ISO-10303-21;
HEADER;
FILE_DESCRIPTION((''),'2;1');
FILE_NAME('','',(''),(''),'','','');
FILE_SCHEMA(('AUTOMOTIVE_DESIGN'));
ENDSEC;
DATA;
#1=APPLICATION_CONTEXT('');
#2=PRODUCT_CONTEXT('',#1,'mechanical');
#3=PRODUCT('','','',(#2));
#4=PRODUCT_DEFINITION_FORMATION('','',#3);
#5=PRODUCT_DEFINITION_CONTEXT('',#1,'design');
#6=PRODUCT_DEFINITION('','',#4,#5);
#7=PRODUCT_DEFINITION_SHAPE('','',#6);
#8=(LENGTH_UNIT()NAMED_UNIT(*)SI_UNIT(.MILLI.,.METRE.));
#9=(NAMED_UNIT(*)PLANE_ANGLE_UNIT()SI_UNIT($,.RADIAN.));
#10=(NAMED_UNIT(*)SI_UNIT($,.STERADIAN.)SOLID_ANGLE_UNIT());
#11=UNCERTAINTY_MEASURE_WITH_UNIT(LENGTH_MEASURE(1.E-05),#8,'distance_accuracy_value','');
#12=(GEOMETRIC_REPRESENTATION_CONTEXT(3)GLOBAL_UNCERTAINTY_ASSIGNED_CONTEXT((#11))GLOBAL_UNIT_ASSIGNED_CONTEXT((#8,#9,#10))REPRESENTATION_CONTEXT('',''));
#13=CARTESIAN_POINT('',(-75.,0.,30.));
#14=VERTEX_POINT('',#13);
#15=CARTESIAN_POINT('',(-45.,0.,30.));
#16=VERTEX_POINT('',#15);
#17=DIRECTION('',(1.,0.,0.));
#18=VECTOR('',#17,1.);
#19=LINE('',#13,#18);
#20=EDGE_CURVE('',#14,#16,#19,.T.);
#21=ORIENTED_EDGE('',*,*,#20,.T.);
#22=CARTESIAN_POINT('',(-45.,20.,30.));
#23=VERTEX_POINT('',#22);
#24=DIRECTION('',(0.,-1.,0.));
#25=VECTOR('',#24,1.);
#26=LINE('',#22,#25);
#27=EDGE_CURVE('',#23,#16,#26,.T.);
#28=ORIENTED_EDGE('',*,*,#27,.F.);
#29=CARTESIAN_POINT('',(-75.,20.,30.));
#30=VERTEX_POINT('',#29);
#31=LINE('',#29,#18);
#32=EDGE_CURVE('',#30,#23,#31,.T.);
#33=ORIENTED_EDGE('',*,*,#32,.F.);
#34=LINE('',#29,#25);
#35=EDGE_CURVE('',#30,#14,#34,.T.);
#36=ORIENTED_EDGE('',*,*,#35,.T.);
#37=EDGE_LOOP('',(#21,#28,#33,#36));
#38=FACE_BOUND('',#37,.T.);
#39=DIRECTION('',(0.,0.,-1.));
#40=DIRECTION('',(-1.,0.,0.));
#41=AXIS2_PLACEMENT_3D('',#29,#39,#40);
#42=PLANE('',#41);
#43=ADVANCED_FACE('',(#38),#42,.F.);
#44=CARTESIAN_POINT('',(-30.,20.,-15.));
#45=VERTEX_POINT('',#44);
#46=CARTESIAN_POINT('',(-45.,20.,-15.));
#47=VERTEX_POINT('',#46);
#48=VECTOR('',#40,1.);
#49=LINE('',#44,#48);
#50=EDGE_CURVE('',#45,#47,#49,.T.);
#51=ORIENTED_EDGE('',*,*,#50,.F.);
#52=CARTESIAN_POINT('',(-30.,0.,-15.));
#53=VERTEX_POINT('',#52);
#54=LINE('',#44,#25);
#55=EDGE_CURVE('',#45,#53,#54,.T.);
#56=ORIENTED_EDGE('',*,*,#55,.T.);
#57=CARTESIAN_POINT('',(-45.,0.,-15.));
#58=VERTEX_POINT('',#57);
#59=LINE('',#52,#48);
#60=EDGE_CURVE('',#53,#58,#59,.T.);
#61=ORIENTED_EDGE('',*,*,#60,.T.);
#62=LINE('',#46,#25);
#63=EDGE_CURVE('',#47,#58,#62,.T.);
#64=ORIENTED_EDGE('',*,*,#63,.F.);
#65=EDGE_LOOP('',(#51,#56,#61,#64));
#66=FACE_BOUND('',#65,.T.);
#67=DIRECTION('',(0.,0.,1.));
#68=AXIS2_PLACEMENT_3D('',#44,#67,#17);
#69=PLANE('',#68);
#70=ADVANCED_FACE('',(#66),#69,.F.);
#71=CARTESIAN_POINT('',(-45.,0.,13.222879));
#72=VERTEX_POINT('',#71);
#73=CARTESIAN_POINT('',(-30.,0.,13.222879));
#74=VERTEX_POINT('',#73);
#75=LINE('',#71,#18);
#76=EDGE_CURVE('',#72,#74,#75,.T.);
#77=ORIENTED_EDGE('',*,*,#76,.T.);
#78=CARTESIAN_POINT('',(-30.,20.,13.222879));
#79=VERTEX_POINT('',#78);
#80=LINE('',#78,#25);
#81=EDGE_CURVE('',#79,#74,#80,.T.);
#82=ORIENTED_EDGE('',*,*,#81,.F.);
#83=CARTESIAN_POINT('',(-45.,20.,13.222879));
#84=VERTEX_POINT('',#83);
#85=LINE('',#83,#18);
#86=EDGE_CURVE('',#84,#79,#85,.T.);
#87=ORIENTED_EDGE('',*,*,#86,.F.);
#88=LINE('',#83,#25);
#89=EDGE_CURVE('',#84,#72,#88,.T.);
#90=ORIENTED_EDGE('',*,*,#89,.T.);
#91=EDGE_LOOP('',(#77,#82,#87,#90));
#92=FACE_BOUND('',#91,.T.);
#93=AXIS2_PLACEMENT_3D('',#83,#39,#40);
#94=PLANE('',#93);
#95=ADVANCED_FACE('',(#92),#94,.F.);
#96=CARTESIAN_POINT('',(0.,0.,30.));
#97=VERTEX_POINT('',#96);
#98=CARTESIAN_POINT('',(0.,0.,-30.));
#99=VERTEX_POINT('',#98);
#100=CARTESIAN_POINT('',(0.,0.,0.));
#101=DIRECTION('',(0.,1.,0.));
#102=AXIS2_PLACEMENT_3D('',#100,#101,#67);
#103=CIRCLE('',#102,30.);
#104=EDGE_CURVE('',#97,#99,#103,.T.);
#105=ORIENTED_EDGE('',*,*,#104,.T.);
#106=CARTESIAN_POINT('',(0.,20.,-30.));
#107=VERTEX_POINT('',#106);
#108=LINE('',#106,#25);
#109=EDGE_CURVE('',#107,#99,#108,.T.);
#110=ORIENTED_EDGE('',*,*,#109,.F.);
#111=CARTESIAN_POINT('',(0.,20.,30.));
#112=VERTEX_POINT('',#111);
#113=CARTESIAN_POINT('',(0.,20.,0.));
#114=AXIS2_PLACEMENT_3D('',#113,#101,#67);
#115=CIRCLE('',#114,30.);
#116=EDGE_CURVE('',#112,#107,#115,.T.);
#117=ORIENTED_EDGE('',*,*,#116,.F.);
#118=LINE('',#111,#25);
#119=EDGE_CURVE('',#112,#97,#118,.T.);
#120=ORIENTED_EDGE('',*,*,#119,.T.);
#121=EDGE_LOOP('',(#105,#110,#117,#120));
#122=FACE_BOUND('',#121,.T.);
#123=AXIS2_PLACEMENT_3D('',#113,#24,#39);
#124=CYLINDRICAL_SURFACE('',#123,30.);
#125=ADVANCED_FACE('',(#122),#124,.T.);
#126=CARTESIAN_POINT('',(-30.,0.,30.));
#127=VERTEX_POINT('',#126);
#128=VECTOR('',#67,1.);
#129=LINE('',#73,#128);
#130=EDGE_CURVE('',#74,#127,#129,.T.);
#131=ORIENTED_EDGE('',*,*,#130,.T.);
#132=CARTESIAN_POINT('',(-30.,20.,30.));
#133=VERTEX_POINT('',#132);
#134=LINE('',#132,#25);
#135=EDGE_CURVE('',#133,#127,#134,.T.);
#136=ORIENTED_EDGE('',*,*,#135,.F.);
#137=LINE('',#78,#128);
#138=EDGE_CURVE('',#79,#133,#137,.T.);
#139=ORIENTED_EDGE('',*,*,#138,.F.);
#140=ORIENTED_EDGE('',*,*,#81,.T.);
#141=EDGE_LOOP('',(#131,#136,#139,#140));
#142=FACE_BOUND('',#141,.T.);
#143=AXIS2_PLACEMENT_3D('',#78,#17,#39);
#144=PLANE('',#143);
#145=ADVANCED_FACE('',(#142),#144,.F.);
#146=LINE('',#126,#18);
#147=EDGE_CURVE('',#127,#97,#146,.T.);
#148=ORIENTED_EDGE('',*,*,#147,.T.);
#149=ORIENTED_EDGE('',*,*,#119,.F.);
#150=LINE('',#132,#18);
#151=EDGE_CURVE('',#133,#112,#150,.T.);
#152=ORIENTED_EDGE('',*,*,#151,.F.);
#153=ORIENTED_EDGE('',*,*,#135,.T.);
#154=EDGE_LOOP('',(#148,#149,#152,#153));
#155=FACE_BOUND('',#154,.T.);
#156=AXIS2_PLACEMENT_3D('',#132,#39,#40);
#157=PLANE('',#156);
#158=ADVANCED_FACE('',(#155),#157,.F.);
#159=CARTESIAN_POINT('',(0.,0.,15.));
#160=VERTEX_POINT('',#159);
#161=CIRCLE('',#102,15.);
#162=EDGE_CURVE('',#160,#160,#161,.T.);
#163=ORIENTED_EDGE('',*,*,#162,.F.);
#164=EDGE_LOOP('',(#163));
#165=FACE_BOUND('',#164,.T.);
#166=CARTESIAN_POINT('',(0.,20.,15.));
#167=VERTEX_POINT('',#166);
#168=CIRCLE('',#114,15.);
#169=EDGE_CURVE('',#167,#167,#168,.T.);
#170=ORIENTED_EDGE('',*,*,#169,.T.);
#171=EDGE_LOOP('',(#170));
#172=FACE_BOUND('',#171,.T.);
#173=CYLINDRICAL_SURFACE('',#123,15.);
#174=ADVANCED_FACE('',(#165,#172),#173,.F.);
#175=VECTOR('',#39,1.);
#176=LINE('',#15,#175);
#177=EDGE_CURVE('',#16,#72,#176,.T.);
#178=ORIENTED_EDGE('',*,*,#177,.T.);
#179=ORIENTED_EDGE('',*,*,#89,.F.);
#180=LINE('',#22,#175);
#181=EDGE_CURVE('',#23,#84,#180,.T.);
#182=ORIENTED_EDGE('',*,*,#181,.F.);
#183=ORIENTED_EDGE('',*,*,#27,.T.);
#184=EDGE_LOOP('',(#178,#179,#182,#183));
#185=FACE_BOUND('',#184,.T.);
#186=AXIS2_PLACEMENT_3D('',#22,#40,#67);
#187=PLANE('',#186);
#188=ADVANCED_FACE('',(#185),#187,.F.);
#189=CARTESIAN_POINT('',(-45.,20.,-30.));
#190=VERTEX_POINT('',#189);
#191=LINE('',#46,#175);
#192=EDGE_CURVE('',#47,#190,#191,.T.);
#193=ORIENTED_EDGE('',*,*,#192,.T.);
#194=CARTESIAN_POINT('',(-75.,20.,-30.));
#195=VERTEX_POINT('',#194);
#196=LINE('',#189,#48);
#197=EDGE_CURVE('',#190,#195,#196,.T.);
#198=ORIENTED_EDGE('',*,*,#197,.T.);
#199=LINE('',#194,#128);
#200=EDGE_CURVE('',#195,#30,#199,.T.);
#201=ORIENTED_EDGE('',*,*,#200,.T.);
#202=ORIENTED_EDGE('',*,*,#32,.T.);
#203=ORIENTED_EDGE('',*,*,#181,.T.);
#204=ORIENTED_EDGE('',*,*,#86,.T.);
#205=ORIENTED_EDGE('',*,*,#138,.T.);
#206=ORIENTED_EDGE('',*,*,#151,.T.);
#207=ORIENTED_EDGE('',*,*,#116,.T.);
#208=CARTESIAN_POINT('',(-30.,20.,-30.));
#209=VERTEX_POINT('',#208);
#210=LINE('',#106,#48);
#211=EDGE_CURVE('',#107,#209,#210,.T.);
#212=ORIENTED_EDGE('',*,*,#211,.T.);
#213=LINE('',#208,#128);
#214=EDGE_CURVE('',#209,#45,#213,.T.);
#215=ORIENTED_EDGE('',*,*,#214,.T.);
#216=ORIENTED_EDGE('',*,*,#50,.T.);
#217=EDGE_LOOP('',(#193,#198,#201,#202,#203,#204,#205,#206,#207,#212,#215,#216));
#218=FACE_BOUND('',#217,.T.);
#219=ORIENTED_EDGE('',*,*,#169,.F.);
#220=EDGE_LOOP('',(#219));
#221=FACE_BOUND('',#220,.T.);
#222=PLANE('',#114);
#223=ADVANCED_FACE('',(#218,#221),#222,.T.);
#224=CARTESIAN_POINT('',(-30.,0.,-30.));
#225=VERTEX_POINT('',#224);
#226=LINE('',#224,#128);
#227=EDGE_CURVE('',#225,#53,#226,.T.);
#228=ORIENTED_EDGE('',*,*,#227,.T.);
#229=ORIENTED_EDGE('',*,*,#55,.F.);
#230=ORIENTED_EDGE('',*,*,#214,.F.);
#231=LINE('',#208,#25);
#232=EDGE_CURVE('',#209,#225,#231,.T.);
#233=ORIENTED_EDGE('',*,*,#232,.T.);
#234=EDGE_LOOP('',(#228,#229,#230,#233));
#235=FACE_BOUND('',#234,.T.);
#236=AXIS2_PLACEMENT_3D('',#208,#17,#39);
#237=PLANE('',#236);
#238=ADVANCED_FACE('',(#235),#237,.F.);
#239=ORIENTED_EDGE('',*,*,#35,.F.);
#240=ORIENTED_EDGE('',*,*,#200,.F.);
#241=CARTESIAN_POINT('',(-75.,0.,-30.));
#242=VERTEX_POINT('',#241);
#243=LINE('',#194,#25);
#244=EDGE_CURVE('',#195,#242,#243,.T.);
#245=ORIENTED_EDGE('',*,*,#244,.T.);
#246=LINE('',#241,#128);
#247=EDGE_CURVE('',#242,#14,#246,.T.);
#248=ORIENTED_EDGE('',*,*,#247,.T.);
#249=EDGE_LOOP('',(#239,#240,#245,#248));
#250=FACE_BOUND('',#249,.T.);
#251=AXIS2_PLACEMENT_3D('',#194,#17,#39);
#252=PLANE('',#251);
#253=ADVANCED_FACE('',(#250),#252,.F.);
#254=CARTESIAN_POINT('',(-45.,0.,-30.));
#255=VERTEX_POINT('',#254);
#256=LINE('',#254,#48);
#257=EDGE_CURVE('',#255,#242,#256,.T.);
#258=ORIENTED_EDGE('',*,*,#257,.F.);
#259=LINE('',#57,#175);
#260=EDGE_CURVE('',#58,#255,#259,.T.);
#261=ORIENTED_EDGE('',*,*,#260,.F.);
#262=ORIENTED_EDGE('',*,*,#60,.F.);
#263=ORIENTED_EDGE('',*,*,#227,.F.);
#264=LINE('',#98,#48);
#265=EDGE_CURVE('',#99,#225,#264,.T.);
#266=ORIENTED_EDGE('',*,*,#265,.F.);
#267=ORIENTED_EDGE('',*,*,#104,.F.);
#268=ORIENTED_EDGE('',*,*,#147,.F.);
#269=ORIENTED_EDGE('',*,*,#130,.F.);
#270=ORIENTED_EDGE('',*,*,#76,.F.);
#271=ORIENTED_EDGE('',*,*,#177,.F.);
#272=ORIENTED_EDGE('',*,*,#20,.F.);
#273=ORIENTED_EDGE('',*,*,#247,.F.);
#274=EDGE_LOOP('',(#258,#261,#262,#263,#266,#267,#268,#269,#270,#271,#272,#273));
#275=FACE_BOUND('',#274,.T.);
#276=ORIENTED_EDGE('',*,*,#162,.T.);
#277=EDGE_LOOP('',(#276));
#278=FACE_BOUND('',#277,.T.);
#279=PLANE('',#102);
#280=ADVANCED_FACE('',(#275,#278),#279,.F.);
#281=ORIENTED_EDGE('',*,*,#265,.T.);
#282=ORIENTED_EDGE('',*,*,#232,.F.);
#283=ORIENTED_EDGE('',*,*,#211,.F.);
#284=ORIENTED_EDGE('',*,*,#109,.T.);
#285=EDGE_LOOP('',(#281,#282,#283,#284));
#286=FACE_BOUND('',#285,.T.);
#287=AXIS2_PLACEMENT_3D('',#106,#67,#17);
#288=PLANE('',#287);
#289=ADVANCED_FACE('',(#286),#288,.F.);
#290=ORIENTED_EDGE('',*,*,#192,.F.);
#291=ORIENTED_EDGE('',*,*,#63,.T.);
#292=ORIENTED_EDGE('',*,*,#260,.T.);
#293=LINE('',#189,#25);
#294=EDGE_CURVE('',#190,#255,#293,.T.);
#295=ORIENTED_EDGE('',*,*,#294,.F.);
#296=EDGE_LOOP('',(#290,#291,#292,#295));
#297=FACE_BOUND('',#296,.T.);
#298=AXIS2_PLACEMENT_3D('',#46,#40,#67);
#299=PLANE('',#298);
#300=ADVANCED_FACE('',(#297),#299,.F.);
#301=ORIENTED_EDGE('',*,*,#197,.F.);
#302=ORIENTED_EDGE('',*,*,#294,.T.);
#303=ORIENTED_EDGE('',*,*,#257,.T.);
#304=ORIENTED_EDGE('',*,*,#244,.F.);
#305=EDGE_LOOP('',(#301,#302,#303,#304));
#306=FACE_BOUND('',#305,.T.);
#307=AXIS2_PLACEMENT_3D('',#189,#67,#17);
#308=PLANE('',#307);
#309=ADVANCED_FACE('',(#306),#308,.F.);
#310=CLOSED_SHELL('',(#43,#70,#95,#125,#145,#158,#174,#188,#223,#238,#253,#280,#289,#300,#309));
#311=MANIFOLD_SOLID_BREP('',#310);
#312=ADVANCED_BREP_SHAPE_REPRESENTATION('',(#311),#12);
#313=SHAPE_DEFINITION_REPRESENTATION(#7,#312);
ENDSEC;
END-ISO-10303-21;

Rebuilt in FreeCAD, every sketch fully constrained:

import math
import FreeCAD as App
import Part
import Sketcher
Q = App.Units.Quantity

doc = App.newDocument("Part")
body = doc.addObject("PartDesign::Body", "Body")

sketch1 = body.newObject("Sketcher::SketchObject", "Sketch")
sketch1.AttachmentSupport = (doc.getObject("XZ_Plane"), [""])
sketch1.MapMode = "FlatFace"
sketch1.addGeometry(Part.LineSegment(App.Vector(0, -30, 0), App.Vector(-30, -30, 0)), False)
sketch1.addGeometry(Part.LineSegment(App.Vector(-30, -30, 0), App.Vector(-30, -15, 0)), False)
sketch1.addGeometry(Part.LineSegment(App.Vector(-30, -15, 0), App.Vector(-45, -15, 0)), False)
sketch1.addGeometry(Part.LineSegment(App.Vector(-45, -15, 0), App.Vector(-45, -30, 0)), False)
sketch1.addGeometry(Part.LineSegment(App.Vector(-45, -30, 0), App.Vector(-75, -30, 0)), False)
sketch1.addGeometry(Part.LineSegment(App.Vector(-75, -30, 0), App.Vector(-75, 30, 0)), False)
sketch1.addGeometry(Part.LineSegment(App.Vector(-75, 30, 0), App.Vector(-45, 30, 0)), False)
sketch1.addGeometry(Part.LineSegment(App.Vector(-45, 30, 0), App.Vector(-45, 13, 0)), False)
sketch1.addGeometry(Part.LineSegment(App.Vector(-45, 13, 0), App.Vector(-30, 13, 0)), False)
sketch1.addGeometry(Part.LineSegment(App.Vector(-30, 13, 0), App.Vector(-30, 30, 0)), False)
sketch1.addGeometry(Part.LineSegment(App.Vector(-30, 30, 0), App.Vector(0, 30, 0)), False)
sketch1.addGeometry(Part.ArcOfCircle(Part.Circle(App.Vector(0, 0, 0), App.Vector(0, 0, 1), 30), math.radians(-90), math.radians(90)), False)
sketch1.addGeometry(Part.Circle(App.Vector(0, 0, 0), App.Vector(0, 0, 1), 15), False)
sketch1.addConstraint(Sketcher.Constraint("Coincident", 0, 2, 1, 1))
sketch1.addConstraint(Sketcher.Constraint("Coincident", 1, 2, 2, 1))
sketch1.addConstraint(Sketcher.Constraint("Coincident", 2, 2, 3, 1))
sketch1.addConstraint(Sketcher.Constraint("Coincident", 3, 2, 4, 1))
sketch1.addConstraint(Sketcher.Constraint("Coincident", 4, 2, 5, 1))
sketch1.addConstraint(Sketcher.Constraint("Coincident", 5, 2, 6, 1))
sketch1.addConstraint(Sketcher.Constraint("Coincident", 6, 2, 7, 1))
sketch1.addConstraint(Sketcher.Constraint("Coincident", 7, 2, 8, 1))
sketch1.addConstraint(Sketcher.Constraint("Coincident", 8, 2, 9, 1))
sketch1.addConstraint(Sketcher.Constraint("Coincident", 9, 2, 10, 1))
sketch1.addConstraint(Sketcher.Constraint("Tangent", 10, 2, 11, 2))
sketch1.addConstraint(Sketcher.Constraint("Tangent", 11, 1, 0, 1))
sketch1.addConstraint(Sketcher.Constraint("Horizontal", 0))
sketch1.addConstraint(Sketcher.Constraint("Vertical", 1))
sketch1.addConstraint(Sketcher.Constraint("Horizontal", 2))
sketch1.addConstraint(Sketcher.Constraint("Vertical", 3))
sketch1.addConstraint(Sketcher.Constraint("Horizontal", 4))
sketch1.addConstraint(Sketcher.Constraint("Vertical", 5))
sketch1.addConstraint(Sketcher.Constraint("Horizontal", 6))
sketch1.addConstraint(Sketcher.Constraint("Vertical", 7))
sketch1.addConstraint(Sketcher.Constraint("Horizontal", 8))
sketch1.addConstraint(Sketcher.Constraint("Vertical", 9))
sketch1.addConstraint(Sketcher.Constraint("Horizontal", 10))
sketch1.addConstraint(Sketcher.Constraint("Coincident", 11, 3, -1, 1))
sketch1.addConstraint(Sketcher.Constraint("Coincident", 12, 3, -1, 1))
sketch1.addConstraint(Sketcher.Constraint("Symmetric", 3, 2, 6, 2, -1))
sketch1.addConstraint(Sketcher.Constraint("Horizontal", 0, 2, 3, 2))
sketch1.addConstraint(Sketcher.Constraint("Vertical", 1, 2, 8, 2))
sketch1.addConstraint(Sketcher.Constraint("Equal", 0, 4))
sketch1.addConstraint(Sketcher.Constraint("Equal", 8, 1))
sketch1.addConstraint(Sketcher.Constraint("Diameter", 12, Q("30 mm")))
sketch1.addConstraint(Sketcher.Constraint("Radius", 11, Q("30 mm")))
sketch1.addConstraint(Sketcher.Constraint("DistanceX", 0, 2, 0, 1, Q("30 mm")))
sketch1.addConstraint(Sketcher.Constraint("DistanceX", 2, 2, 2, 1, Q("15 mm")))
sketch1.addConstraint(Sketcher.Constraint("DistanceY", 7, 2, 7, 1, Q("16.777121 mm")))
pad1 = body.newObject("PartDesign::Pad", "Pad")
pad1.Profile = sketch1
pad1.Length = 20
pad1.Reversed = True

doc.recompute()
